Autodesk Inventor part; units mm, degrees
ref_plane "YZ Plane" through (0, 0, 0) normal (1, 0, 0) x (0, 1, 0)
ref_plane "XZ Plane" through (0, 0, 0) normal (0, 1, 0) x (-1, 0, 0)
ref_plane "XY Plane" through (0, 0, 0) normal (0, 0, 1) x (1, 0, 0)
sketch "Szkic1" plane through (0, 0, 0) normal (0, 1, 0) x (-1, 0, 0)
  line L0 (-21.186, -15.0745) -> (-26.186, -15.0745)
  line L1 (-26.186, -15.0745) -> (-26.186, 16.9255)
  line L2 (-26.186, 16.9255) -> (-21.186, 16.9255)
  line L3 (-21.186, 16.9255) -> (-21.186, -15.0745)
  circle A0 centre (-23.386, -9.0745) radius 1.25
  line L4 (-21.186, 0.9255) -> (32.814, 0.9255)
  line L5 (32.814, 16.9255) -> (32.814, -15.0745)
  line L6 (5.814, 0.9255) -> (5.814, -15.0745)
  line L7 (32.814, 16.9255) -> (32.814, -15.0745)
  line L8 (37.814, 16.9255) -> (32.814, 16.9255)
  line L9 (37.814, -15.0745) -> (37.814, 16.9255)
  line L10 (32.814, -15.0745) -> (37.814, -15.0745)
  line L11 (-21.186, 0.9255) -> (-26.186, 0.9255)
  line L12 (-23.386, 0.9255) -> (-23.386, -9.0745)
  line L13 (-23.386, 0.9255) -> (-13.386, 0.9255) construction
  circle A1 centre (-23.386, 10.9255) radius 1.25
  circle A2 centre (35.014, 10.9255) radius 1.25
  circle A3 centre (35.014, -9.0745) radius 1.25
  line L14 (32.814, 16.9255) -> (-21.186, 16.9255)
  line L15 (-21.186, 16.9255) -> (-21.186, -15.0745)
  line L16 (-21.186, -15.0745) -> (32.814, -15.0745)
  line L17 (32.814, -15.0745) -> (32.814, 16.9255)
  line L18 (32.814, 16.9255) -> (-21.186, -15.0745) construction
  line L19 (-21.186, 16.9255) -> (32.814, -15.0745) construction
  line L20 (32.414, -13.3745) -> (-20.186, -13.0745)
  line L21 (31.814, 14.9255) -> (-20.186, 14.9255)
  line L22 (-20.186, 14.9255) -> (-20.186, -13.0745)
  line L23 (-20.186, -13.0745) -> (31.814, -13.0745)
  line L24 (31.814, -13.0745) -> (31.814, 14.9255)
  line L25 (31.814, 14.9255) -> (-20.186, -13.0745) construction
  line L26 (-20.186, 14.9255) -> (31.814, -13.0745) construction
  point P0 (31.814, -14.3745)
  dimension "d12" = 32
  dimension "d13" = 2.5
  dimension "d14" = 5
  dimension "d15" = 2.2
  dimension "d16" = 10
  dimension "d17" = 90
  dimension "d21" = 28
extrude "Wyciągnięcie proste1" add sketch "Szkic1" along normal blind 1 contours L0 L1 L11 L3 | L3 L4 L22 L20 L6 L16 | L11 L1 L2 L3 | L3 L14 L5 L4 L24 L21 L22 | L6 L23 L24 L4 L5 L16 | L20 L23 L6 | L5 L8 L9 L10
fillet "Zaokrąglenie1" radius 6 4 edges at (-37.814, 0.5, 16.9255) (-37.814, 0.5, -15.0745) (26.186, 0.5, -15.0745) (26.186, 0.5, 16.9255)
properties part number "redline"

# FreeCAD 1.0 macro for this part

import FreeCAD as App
import Part
import Sketcher

V = App.Vector


def edges_at(feature, points):
    """Names of the edges that pass closest to the given points."""
    edges = feature.Shape.Edges
    near = lambda p: min(range(len(edges)), key=lambda i: edges[i].distToShape(Part.Vertex(*p))[0])
    return sorted({f"Edge{near(p) + 1}" for p in points})


def add_polygon(sketch, points):
    """Adds a closed chain of lines whose ends are joined by coincident constraints."""
    first, n = sketch.GeometryCount, len(points)
    for a, b in zip(points, points[1:] + points[:1]):
        sketch.addGeometry(Part.LineSegment(App.Vector(*a, 0), App.Vector(*b, 0)), False)
    for i in range(n):
        sketch.addConstraint(Sketcher.Constraint("Coincident", first + i, 2, first + (i + 1) % n, 1))

doc = App.newDocument("Part")
params = doc.addObject("Spreadsheet::Sheet", "Params")
for row, (alias, value) in enumerate([
    ("sketch1_diameter", "2.5 mm"),
    ("sketch1_height", "32 mm"),
    ("sketch1_height2", "28 mm"),
    ("sketch1_width", "64 mm"),
    ("sketch1_width2", "52 mm"),
    ("pad1_length", "1 mm"),
    ("fillet_radius", "6 mm"),
], start=1):
    params.set(f"A{row}", alias)
    params.set(f"B{row}", "=" + value)
    params.setAlias(f"B{row}", alias)

body = doc.addObject("PartDesign::Body", "Body")

sketch1 = body.newObject("Sketcher::SketchObject", "Sketch")
sketch1.AttachmentSupport = (doc.getObject("XZ_Plane"), [""])
sketch1.MapMode = "FlatFace"
add_polygon(sketch1, [(26.2, -15.1), (-37.8, -15.1), (-37.8, 16.9), (26.2, 16.9)])
sketch1.addGeometry(Part.Circle(V(23.4, -9.1, 0), V(0, 0, 1), 1.2), False)
sketch1.addGeometry(Part.Circle(V(23.4, 10.9, 0), V(0, 0, 1), 1.2), False)
add_polygon(sketch1, [(20.2, -13.1), (20.2, 14.9), (-31.8, 14.9), (-31.8, -13.1)])
sketch1.addGeometry(Part.Circle(V(-35, -9.1, 0), V(0, 0, 1), 1.2), False)
sketch1.addGeometry(Part.Circle(V(-35, 10.9, 0), V(0, 0, 1), 1.2), False)
sketch1.addConstraint([
    Sketcher.Constraint("Horizontal", 0),
    Sketcher.Constraint("Vertical", 1),
    Sketcher.Constraint("Horizontal", 2),
    Sketcher.Constraint("Vertical", 3),
    Sketcher.Constraint("Vertical", 6),
    Sketcher.Constraint("Horizontal", 7),
    Sketcher.Constraint("Vertical", 8),
    Sketcher.Constraint("Horizontal", 9),
    Sketcher.Constraint("Equal", 4, 5),
    Sketcher.Constraint("Equal", 5, 10),
    Sketcher.Constraint("Equal", 10, 11),
    Sketcher.Constraint("Horizontal", 4, 3, 10, 3),
    Sketcher.Constraint("Horizontal", 5, 3, 11, 3),
    Sketcher.Constraint("Vertical", 4, 3, 5, 3),
    Sketcher.Constraint("Vertical", 10, 3, 11, 3),
    Sketcher.Constraint("Diameter", 4, 2.5),
    Sketcher.Constraint("DistanceY", 1, 1, 1, 2, 32.0),
    Sketcher.Constraint("DistanceY", 6, 1, 6, 2, 28.0),
    Sketcher.Constraint("DistanceX", 0, 2, 0, 1, 64.0),
    Sketcher.Constraint("DistanceX", 7, 2, 7, 1, 52.0),
    Sketcher.Constraint("DistanceY", 4, 3, 5, 3, 20.0),
    Sketcher.Constraint("DistanceY", 0, 2, 10, 3, 6.0),
    Sketcher.Constraint("DistanceY", 5, 3, 6, 2, 4.0),
    Sketcher.Constraint("DistanceX", 6, 2, 2, 2, 6.0),
    Sketcher.Constraint("DistanceX", 10, 3, 4, 3, 58.4),
    Sketcher.Constraint("DistanceX", 0, 2, 10, 3, 2.8),
    Sketcher.Constraint("DistanceX", -1, 1, 4, 3, 23.386),
    Sketcher.Constraint("DistanceY", 4, 3, -1, 1, 9.0745),
])
sketch1.setExpression("Constraints[23]", "Params.sketch1_diameter")
sketch1.setExpression("Constraints[24]", "Params.sketch1_height")
sketch1.setExpression("Constraints[25]", "Params.sketch1_height2")
sketch1.setExpression("Constraints[26]", "Params.sketch1_width")
sketch1.setExpression("Constraints[27]", "Params.sketch1_width2")
pad1 = body.newObject("PartDesign::Pad", "Pad")
pad1.Profile = sketch1
pad1.setExpression("Length", "Params.pad1_length")
pad1.Reversed = True
doc.recompute()

fillet = body.newObject("PartDesign::Fillet", "Fillet")
fillet.Base = (pad1, edges_at(pad1, [
    (-37.814, 0.5, 16.925),
    (-37.814, 0.5, -15.075),
    (26.186, 0.5, -15.075),
    (26.186, 0.5, 16.925),
]))
fillet.setExpression("Radius", "Params.fillet_radius")

doc.recompute()
